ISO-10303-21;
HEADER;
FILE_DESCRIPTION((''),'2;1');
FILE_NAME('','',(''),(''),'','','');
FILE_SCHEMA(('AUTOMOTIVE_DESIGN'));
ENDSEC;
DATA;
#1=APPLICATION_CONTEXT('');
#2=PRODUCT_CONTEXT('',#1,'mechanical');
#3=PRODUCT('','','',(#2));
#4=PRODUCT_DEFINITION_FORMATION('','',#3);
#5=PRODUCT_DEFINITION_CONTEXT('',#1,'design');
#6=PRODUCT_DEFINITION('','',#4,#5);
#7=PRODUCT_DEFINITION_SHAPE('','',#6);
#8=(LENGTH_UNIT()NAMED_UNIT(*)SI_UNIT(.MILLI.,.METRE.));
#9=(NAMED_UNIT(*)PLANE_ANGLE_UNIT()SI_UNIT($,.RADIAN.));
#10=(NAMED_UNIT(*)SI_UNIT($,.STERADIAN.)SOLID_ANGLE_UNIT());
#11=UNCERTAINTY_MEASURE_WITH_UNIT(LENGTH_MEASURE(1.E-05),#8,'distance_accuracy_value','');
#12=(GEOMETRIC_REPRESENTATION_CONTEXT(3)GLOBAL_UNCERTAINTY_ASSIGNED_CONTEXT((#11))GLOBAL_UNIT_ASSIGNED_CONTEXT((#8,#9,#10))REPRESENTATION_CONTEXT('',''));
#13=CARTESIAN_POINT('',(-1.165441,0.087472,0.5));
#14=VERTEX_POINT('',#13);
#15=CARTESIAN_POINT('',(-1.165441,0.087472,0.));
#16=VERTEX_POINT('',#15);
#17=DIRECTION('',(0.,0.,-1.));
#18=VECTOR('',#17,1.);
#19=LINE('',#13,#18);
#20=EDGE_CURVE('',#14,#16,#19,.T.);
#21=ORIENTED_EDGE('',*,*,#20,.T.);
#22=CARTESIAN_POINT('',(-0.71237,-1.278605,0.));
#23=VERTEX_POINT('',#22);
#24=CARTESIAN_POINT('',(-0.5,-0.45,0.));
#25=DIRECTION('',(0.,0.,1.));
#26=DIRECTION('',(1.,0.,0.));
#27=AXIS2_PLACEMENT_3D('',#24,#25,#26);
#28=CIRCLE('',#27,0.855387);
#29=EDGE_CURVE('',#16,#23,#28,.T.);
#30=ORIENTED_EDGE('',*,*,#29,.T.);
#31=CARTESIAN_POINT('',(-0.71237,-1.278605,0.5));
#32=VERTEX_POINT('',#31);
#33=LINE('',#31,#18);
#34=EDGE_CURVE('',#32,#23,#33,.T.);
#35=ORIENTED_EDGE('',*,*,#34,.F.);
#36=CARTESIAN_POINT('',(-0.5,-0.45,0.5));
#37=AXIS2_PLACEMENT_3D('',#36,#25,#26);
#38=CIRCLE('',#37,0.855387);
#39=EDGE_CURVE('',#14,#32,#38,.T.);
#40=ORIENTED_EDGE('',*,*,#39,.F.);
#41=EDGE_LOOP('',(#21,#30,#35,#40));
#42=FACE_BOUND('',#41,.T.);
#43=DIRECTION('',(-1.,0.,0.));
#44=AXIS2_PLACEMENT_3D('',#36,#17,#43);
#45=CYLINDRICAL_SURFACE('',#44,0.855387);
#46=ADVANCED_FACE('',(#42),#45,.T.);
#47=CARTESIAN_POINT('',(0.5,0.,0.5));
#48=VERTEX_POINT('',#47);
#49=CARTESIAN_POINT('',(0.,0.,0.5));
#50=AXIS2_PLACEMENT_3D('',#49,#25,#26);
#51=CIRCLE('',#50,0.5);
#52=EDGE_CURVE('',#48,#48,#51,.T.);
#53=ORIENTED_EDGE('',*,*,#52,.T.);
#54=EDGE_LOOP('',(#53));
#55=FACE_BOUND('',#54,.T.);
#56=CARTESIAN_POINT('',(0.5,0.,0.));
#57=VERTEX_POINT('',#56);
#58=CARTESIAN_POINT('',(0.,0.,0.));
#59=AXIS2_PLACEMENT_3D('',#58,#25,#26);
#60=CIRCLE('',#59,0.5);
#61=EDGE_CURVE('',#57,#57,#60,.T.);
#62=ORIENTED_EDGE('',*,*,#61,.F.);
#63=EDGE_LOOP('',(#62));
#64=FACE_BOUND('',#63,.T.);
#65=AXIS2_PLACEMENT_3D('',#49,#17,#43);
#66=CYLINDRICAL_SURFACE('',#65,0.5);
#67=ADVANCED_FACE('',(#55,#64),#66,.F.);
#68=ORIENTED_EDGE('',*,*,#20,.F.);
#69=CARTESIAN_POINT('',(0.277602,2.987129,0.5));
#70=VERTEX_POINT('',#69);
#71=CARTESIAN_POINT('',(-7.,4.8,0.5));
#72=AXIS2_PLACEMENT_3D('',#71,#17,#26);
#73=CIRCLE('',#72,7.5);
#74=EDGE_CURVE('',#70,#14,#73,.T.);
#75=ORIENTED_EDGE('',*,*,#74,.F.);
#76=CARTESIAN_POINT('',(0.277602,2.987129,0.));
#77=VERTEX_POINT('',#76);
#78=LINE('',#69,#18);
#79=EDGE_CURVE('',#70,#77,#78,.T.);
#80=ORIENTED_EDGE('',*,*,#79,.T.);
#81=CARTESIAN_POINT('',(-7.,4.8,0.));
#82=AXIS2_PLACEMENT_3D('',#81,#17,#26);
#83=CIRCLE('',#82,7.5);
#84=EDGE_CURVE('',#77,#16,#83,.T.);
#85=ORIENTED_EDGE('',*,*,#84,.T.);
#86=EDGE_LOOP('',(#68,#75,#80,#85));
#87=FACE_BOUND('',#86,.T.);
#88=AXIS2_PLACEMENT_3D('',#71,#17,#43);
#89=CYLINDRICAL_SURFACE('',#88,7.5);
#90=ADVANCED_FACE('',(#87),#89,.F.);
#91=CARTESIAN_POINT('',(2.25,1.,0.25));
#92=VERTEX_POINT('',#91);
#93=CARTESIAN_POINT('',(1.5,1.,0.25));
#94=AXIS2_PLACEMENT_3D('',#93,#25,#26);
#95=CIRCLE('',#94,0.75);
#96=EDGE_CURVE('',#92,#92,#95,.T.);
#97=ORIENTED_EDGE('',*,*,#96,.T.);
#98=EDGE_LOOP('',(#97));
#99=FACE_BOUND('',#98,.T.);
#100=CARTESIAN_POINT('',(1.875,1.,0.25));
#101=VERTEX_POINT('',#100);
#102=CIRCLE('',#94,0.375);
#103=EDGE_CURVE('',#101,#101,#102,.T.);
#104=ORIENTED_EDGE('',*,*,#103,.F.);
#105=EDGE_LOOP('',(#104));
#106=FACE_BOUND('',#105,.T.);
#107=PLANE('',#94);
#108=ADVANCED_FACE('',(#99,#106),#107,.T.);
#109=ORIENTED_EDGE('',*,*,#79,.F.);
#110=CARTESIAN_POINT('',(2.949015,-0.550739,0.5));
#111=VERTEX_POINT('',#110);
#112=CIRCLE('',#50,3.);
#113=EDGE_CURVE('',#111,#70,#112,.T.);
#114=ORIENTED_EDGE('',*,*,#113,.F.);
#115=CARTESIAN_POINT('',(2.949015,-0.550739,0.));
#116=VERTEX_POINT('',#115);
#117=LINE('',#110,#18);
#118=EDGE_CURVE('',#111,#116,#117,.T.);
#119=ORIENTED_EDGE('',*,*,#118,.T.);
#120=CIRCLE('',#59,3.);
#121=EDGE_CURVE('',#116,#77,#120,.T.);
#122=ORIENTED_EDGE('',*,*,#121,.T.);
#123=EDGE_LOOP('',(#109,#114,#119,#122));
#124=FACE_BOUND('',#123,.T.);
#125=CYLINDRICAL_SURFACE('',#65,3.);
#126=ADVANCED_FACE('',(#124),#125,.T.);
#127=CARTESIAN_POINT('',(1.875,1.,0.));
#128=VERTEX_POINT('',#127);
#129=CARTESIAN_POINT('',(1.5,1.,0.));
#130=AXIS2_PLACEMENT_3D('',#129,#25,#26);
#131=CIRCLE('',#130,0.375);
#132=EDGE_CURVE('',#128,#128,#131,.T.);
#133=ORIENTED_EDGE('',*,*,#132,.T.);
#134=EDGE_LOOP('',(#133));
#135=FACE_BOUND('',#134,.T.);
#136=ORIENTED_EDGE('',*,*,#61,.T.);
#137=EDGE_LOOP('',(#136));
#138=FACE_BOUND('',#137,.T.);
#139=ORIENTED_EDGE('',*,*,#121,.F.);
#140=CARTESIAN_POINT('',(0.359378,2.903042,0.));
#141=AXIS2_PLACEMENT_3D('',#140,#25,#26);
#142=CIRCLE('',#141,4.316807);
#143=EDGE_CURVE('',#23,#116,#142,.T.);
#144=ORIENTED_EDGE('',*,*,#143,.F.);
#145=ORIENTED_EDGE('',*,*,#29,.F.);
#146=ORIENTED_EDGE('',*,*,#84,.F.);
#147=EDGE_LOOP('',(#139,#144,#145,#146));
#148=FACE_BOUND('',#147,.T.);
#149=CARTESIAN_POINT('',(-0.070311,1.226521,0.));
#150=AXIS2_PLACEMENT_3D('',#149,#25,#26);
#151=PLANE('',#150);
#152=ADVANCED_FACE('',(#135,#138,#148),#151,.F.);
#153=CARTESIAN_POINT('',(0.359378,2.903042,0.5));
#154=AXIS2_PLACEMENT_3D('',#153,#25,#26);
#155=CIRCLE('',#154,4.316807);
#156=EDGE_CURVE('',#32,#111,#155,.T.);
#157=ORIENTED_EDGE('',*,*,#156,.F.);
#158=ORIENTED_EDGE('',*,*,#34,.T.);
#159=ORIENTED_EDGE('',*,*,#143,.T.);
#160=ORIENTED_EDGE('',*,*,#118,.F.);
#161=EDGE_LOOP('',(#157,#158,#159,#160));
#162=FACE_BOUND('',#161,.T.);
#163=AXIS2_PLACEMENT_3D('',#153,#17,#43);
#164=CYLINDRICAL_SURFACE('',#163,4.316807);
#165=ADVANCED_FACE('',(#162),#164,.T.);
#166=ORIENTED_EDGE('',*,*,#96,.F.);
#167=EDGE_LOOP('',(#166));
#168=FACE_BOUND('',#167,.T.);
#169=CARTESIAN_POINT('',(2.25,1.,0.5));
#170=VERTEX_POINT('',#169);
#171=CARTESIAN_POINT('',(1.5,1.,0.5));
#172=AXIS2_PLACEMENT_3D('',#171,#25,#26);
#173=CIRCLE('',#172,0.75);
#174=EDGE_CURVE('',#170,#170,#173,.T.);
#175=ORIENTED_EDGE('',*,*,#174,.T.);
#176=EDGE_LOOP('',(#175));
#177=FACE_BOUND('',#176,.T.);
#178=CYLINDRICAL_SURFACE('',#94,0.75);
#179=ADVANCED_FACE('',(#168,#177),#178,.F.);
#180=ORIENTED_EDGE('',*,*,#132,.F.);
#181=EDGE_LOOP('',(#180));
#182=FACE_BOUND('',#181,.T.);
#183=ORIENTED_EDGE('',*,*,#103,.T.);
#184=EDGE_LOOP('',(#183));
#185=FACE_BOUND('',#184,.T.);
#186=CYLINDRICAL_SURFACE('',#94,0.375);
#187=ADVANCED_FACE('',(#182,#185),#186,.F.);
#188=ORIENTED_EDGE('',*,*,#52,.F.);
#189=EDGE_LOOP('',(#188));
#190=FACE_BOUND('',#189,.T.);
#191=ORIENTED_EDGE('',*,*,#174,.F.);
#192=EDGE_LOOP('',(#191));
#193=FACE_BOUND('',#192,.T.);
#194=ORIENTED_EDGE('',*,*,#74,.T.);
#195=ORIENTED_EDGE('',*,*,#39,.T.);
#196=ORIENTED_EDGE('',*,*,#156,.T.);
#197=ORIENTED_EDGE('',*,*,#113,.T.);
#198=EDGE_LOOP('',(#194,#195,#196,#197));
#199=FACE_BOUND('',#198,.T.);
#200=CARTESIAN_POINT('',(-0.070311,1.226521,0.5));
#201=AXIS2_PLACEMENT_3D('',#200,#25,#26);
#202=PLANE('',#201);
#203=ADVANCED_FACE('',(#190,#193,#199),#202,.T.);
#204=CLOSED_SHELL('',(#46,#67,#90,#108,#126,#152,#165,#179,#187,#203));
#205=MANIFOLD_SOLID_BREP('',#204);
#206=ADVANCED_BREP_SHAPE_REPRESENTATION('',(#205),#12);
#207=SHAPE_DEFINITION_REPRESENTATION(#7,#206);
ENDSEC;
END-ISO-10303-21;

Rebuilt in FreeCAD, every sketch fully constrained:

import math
import FreeCAD as App
import Part
import Sketcher
Q = App.Units.Quantity

doc = App.newDocument("Part")
body = doc.addObject("PartDesign::Body", "Body")

# Sketch on XY plane
sketch1 = body.newObject("Sketcher::SketchObject", "Sketch")
sketch1.AttachmentSupport = (doc.getObject("XY_Plane"), [""])
sketch1.MapMode = "FlatFace"
sketch1.addGeometry(Part.ArcOfCircle(Part.Circle(App.Vector(0, 0, 0), App.Vector(0, 0, 1), 3), math.radians(-11), math.radians(85)), False)
sketch1.addGeometry(Part.ArcOfCircle(Part.Circle(App.Vector(-7, 4.8, 0), App.Vector(0, 0, 1), 7.5), math.radians(-39), math.radians(-14)), False)
sketch1.addGeometry(Part.ArcOfCircle(Part.Circle(App.Vector(-0.5, -0.5, 0), App.Vector(0, 0, 1), 0.9), math.radians(141), math.radians(256)), False)
sketch1.addGeometry(Part.ArcOfCircle(Part.Circle(App.Vector(0.4, 2.9, 0), App.Vector(0, 0, 1), 4.3), math.radians(-104), math.radians(-53)), False)
sketch1.addGeometry(Part.Circle(App.Vector(0, 0, 0), App.Vector(0, 0, 1), 0.5), False)
sketch1.addConstraint(Sketcher.Constraint("Coincident", 0, 2, 1, 2))
sketch1.addConstraint(Sketcher.Constraint("Tangent", 1, 1, 2, 1))
sketch1.addConstraint(Sketcher.Constraint("Tangent", 2, 2, 3, 1))
sketch1.addConstraint(Sketcher.Constraint("Coincident", 3, 2, 0, 1))
sketch1.addConstraint(Sketcher.Constraint("Coincident", 0, 3, -1, 1))
sketch1.addConstraint(Sketcher.Constraint("Coincident", 4, 3, -1, 1))
sketch1.addConstraint(Sketcher.Constraint("Diameter", 4, Q("1 mm")))
sketch1.addConstraint(Sketcher.Constraint("Radius", 0, Q("3 mm")))
sketch1.addConstraint(Sketcher.Constraint("Radius", 1, Q("7.5 mm")))
sketch1.addConstraint(Sketcher.Constraint("DistanceX", 1, 3, -1, 1, Q("7 mm")))
sketch1.addConstraint(Sketcher.Constraint("DistanceY", -1, 1, 1, 3, Q("4.8 mm")))
sketch1.addConstraint(Sketcher.Constraint("DistanceX", 2, 3, -1, 1, Q("0.5 mm")))
sketch1.addConstraint(Sketcher.Constraint("DistanceY", 2, 3, -1, 1, Q("0.45 mm")))
sketch1.addConstraint(Sketcher.Constraint("Radius", 3, Q("4.316807 mm")))
sketch1.addConstraint(Sketcher.Constraint("DistanceX", -1, 1, 3, 3, Q("0.359378 mm")))
pad1 = body.newObject("PartDesign::Pad", "Pad")
pad1.Profile = sketch1
pad1.Length = 0.5

# Sketch on XY plane
sketch2 = body.newObject("Sketcher::SketchObject", "Sketch001")
sketch2.AttachmentSupport = (doc.getObject("XY_Plane"), [""])
sketch2.MapMode = "FlatFace"
sketch2.AttachmentOffset = App.Placement(App.Vector(0, 0, 0.5), App.Rotation())
sketch2.addGeometry(Part.Circle(App.Vector(1.5, 1, 0), App.Vector(0, 0, 1), 0.8), False)
sketch2.addConstraint(Sketcher.Constraint("Diameter", 0, Q("1.5 mm")))
sketch2.addConstraint(Sketcher.Constraint("DistanceY", -1, 1, 0, 3, Q("1 mm")))
sketch2.addConstraint(Sketcher.Constraint("DistanceX", -1, 1, 0, 3, Q("1.5 mm")))
pocket1 = body.newObject("PartDesign::Pocket", "Pocket")
pocket1.Profile = sketch2
pocket1.Length = 0.25

# Sketch on XY plane
sketch3 = body.newObject("Sketcher::SketchObject", "Sketch002")
sketch3.AttachmentSupport = (doc.getObject("XY_Plane"), [""])
sketch3.MapMode = "FlatFace"
sketch3.AttachmentOffset = App.Placement(App.Vector(0, 0, 0.25), App.Rotation())
sketch3.addGeometry(Part.Circle(App.Vector(1.5, 1, 0), App.Vector(0, 0, 1), 0.38), False)
sketch3.addConstraint(Sketcher.Constraint("Diameter", 0, Q("0.75 mm")))
sketch3.addConstraint(Sketcher.Constraint("DistanceY", -1, 1, 0, 3, Q("1 mm")))
sketch3.addConstraint(Sketcher.Constraint("DistanceX", -1, 1, 0, 3, Q("1.5 mm")))
doc.recompute()
hole = body.newObject("PartDesign::Hole", "Hole")
hole.Profile = sketch3
hole.ThreadType = "None"
hole.Diameter = 0.75
hole.DepthType = "ThroughAll"

doc.recompute()
